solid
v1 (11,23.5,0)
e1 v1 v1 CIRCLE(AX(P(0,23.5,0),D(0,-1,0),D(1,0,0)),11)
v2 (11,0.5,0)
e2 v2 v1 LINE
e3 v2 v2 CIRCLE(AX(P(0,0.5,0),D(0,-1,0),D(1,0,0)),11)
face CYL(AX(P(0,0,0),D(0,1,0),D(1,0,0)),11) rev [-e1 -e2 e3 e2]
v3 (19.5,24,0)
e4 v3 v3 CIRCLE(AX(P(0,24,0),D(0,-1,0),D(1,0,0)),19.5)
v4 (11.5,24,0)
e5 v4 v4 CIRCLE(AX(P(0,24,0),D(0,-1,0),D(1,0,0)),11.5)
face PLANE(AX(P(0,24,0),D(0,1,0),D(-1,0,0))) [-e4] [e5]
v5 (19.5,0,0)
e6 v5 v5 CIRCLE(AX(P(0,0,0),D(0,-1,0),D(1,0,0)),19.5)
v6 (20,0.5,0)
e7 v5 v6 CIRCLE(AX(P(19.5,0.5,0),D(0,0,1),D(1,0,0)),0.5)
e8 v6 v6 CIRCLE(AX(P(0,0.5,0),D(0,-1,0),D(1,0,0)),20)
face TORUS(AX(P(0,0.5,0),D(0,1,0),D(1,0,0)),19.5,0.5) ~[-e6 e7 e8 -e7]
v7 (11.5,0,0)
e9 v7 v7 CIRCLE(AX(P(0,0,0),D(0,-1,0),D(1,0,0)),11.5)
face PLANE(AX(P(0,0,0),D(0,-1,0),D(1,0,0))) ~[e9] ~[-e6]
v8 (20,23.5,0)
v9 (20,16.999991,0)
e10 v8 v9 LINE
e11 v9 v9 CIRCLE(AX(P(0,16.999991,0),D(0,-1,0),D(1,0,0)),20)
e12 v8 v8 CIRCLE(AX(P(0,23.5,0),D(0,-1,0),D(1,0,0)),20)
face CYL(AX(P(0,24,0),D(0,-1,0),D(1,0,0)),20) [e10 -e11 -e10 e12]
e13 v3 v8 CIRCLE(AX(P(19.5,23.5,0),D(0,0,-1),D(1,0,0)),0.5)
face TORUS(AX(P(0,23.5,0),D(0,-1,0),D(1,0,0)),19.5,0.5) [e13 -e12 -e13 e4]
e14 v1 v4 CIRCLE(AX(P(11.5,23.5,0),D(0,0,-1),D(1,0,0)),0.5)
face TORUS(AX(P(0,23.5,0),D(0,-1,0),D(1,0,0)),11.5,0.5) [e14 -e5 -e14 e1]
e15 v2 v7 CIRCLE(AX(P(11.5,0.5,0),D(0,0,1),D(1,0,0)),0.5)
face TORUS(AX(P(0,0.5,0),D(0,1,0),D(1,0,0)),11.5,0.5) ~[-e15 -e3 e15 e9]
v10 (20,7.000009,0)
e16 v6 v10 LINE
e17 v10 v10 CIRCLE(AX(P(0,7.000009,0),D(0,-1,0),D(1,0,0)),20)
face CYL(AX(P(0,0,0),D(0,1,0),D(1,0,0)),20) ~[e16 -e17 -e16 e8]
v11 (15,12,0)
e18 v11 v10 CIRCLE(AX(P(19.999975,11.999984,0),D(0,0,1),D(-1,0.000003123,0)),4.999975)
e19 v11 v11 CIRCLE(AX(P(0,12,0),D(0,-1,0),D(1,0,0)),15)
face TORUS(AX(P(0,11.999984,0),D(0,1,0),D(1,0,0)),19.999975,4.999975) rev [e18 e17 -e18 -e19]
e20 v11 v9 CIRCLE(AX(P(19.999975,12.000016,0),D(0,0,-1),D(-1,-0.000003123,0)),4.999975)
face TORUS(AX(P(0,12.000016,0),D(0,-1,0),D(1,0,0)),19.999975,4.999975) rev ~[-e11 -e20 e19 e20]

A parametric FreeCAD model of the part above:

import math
import FreeCAD as App
import Part
import Sketcher
Q = App.Units.Quantity


def edges_at(feature, points):
    """Names of the edges that pass closest to the given points."""
    edges = feature.Shape.Edges
    near = lambda p: min(range(len(edges)), key=lambda i: edges[i].distToShape(Part.Vertex(*p))[0])
    return sorted({f"Edge{near(p) + 1}" for p in points})

doc = App.newDocument("Part")
body = doc.addObject("PartDesign::Body", "Body")

sketch1 = body.newObject("Sketcher::SketchObject", "Sketch")
sketch1.AttachmentSupport = (doc.getObject("XY_Plane"), [""])
sketch1.MapMode = "FlatFace"
sketch1.addGeometry(Part.LineSegment(App.Vector(11, 12, 0), App.Vector(11, 0, 0)), False)
sketch1.addGeometry(Part.LineSegment(App.Vector(11, 0, 0), App.Vector(20, 0, 0)), False)
sketch1.addGeometry(Part.LineSegment(App.Vector(20, 0, 0), App.Vector(20, 7, 0)), False)
sketch1.addGeometry(Part.ArcOfCircle(Part.Circle(App.Vector(20, 12, 0), App.Vector(0, 0, 1), 5), math.radians(180), math.radians(270)), False)
sketch1.addGeometry(Part.LineSegment(App.Vector(15, 12, 0), App.Vector(11, 12, 0)), False)
sketch1.addConstraint(Sketcher.Constraint("Coincident", 0, 2, 1, 1))
sketch1.addConstraint(Sketcher.Constraint("Coincident", 1, 2, 2, 1))
sketch1.addConstraint(Sketcher.Constraint("Coincident", 2, 2, 3, 2))
sketch1.addConstraint(Sketcher.Constraint("Coincident", 3, 1, 4, 1))
sketch1.addConstraint(Sketcher.Constraint("Coincident", 4, 2, 0, 1))
sketch1.addConstraint(Sketcher.Constraint("Vertical", 0))
sketch1.addConstraint(Sketcher.Constraint("Horizontal", 1))
sketch1.addConstraint(Sketcher.Constraint("Vertical", 2))
sketch1.addConstraint(Sketcher.Constraint("Horizontal", 4))
sketch1.addConstraint(Sketcher.Constraint("PointOnObject", 0, 2, -1))
sketch1.addConstraint(Sketcher.Constraint("Vertical", 3, 3, 1, 2))
sketch1.addConstraint(Sketcher.Constraint("Radius", 3, Q("5 mm")))
sketch1.addConstraint(Sketcher.Constraint("DistanceY", 0, 2, 0, 1, Q("12 mm")))
sketch1.addConstraint(Sketcher.Constraint("DistanceX", -1, 1, 3, 3, Q("20 mm")))
sketch1.addConstraint(Sketcher.Constraint("DistanceY", -1, 1, 3, 3, Q("12 mm")))
sketch1.addConstraint(Sketcher.Constraint("DistanceX", -1, 1, 0, 2, Q("11 mm")))
revolution = body.newObject("PartDesign::Revolution", "Revolution")
revolution.Profile = sketch1
revolution.ReferenceAxis = (sketch1, ["V_Axis"])
revolution.Angle = 360
doc.recompute()

datumplane = body.newObject("PartDesign::Plane", "DatumPlane")
datumplane.AttachmentSupport = (doc.getObject("XZ_Plane"), [""])
datumplane.MapMode = "FlatFace"
datumplane.AttachmentOffset = App.Placement(App.Vector(0, 0, -12), App.Rotation())
mirrored = body.newObject("PartDesign::Mirrored", "Mirrored")
mirrored.Originals = [revolution]
mirrored.MirrorPlane = (datumplane, [""])
body.Tip = mirrored
doc.recompute()

fillet = body.newObject("PartDesign::Fillet", "Fillet")
fillet.Base = (mirrored, edges_at(mirrored, [
    (-20, 0, 0),
    (-11, 0, 0),
    (-20, 24, 0),
    (-11, 24, 0),
]))
fillet.Radius = 0.5

doc.recompute()
